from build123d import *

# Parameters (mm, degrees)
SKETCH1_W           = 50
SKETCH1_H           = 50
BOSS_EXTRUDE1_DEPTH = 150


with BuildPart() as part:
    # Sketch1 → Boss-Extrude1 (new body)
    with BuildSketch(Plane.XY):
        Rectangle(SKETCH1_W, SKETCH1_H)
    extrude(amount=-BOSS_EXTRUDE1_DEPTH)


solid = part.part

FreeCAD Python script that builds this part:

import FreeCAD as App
import Part
import Sketcher


def add_polygon(sketch, points):
    """Adds a closed chain of lines whose ends are joined by coincident constraints."""
    first, n = sketch.GeometryCount, len(points)
    for a, b in zip(points, points[1:] + points[:1]):
        sketch.addGeometry(Part.LineSegment(App.Vector(*a, 0), App.Vector(*b, 0)), False)
    for i in range(n):
        sketch.addConstraint(Sketcher.Constraint("Coincident", first + i, 2, first + (i + 1) % n, 1))

doc = App.newDocument("Part")
params = doc.addObject("Spreadsheet::Sheet", "Params")
for row, (alias, value) in enumerate([
    ("sketch1_width", "50 mm"),
    ("pad1_length", "150 mm"),
], start=1):
    params.set(f"A{row}", alias)
    params.set(f"B{row}", "=" + value)
    params.setAlias(f"B{row}", alias)

body = doc.addObject("PartDesign::Body", "Body")

# Sketch on XY plane
sketch1 = body.newObject("Sketcher::SketchObject", "Sketch")
sketch1.AttachmentSupport = (doc.getObject("XY_Plane"), [""])
sketch1.MapMode = "FlatFace"
add_polygon(sketch1, [(-25, 25), (-25, -25), (25, -25), (25, 25)])  # lines 0-3
sketch1.addConstraint([
    Sketcher.Constraint("Vertical", 0),
    Sketcher.Constraint("Horizontal", 1),
    Sketcher.Constraint("Vertical", 2),
    Sketcher.Constraint("Horizontal", 3),
    Sketcher.Constraint("Symmetric", 0, 2, 2, 2, -1, 1),
    Sketcher.Constraint("Equal", 3, 0),
    Sketcher.Constraint("DistanceX", 1, 1, 1, 2, 50.0),
])
sketch1.setExpression("Constraints[10]", "Params.sketch1_width")
pad1 = body.newObject("PartDesign::Pad", "Pad")
pad1.Profile = sketch1
pad1.setExpression("Length", "Params.pad1_length")
pad1.Reversed = True

doc.recompute()
